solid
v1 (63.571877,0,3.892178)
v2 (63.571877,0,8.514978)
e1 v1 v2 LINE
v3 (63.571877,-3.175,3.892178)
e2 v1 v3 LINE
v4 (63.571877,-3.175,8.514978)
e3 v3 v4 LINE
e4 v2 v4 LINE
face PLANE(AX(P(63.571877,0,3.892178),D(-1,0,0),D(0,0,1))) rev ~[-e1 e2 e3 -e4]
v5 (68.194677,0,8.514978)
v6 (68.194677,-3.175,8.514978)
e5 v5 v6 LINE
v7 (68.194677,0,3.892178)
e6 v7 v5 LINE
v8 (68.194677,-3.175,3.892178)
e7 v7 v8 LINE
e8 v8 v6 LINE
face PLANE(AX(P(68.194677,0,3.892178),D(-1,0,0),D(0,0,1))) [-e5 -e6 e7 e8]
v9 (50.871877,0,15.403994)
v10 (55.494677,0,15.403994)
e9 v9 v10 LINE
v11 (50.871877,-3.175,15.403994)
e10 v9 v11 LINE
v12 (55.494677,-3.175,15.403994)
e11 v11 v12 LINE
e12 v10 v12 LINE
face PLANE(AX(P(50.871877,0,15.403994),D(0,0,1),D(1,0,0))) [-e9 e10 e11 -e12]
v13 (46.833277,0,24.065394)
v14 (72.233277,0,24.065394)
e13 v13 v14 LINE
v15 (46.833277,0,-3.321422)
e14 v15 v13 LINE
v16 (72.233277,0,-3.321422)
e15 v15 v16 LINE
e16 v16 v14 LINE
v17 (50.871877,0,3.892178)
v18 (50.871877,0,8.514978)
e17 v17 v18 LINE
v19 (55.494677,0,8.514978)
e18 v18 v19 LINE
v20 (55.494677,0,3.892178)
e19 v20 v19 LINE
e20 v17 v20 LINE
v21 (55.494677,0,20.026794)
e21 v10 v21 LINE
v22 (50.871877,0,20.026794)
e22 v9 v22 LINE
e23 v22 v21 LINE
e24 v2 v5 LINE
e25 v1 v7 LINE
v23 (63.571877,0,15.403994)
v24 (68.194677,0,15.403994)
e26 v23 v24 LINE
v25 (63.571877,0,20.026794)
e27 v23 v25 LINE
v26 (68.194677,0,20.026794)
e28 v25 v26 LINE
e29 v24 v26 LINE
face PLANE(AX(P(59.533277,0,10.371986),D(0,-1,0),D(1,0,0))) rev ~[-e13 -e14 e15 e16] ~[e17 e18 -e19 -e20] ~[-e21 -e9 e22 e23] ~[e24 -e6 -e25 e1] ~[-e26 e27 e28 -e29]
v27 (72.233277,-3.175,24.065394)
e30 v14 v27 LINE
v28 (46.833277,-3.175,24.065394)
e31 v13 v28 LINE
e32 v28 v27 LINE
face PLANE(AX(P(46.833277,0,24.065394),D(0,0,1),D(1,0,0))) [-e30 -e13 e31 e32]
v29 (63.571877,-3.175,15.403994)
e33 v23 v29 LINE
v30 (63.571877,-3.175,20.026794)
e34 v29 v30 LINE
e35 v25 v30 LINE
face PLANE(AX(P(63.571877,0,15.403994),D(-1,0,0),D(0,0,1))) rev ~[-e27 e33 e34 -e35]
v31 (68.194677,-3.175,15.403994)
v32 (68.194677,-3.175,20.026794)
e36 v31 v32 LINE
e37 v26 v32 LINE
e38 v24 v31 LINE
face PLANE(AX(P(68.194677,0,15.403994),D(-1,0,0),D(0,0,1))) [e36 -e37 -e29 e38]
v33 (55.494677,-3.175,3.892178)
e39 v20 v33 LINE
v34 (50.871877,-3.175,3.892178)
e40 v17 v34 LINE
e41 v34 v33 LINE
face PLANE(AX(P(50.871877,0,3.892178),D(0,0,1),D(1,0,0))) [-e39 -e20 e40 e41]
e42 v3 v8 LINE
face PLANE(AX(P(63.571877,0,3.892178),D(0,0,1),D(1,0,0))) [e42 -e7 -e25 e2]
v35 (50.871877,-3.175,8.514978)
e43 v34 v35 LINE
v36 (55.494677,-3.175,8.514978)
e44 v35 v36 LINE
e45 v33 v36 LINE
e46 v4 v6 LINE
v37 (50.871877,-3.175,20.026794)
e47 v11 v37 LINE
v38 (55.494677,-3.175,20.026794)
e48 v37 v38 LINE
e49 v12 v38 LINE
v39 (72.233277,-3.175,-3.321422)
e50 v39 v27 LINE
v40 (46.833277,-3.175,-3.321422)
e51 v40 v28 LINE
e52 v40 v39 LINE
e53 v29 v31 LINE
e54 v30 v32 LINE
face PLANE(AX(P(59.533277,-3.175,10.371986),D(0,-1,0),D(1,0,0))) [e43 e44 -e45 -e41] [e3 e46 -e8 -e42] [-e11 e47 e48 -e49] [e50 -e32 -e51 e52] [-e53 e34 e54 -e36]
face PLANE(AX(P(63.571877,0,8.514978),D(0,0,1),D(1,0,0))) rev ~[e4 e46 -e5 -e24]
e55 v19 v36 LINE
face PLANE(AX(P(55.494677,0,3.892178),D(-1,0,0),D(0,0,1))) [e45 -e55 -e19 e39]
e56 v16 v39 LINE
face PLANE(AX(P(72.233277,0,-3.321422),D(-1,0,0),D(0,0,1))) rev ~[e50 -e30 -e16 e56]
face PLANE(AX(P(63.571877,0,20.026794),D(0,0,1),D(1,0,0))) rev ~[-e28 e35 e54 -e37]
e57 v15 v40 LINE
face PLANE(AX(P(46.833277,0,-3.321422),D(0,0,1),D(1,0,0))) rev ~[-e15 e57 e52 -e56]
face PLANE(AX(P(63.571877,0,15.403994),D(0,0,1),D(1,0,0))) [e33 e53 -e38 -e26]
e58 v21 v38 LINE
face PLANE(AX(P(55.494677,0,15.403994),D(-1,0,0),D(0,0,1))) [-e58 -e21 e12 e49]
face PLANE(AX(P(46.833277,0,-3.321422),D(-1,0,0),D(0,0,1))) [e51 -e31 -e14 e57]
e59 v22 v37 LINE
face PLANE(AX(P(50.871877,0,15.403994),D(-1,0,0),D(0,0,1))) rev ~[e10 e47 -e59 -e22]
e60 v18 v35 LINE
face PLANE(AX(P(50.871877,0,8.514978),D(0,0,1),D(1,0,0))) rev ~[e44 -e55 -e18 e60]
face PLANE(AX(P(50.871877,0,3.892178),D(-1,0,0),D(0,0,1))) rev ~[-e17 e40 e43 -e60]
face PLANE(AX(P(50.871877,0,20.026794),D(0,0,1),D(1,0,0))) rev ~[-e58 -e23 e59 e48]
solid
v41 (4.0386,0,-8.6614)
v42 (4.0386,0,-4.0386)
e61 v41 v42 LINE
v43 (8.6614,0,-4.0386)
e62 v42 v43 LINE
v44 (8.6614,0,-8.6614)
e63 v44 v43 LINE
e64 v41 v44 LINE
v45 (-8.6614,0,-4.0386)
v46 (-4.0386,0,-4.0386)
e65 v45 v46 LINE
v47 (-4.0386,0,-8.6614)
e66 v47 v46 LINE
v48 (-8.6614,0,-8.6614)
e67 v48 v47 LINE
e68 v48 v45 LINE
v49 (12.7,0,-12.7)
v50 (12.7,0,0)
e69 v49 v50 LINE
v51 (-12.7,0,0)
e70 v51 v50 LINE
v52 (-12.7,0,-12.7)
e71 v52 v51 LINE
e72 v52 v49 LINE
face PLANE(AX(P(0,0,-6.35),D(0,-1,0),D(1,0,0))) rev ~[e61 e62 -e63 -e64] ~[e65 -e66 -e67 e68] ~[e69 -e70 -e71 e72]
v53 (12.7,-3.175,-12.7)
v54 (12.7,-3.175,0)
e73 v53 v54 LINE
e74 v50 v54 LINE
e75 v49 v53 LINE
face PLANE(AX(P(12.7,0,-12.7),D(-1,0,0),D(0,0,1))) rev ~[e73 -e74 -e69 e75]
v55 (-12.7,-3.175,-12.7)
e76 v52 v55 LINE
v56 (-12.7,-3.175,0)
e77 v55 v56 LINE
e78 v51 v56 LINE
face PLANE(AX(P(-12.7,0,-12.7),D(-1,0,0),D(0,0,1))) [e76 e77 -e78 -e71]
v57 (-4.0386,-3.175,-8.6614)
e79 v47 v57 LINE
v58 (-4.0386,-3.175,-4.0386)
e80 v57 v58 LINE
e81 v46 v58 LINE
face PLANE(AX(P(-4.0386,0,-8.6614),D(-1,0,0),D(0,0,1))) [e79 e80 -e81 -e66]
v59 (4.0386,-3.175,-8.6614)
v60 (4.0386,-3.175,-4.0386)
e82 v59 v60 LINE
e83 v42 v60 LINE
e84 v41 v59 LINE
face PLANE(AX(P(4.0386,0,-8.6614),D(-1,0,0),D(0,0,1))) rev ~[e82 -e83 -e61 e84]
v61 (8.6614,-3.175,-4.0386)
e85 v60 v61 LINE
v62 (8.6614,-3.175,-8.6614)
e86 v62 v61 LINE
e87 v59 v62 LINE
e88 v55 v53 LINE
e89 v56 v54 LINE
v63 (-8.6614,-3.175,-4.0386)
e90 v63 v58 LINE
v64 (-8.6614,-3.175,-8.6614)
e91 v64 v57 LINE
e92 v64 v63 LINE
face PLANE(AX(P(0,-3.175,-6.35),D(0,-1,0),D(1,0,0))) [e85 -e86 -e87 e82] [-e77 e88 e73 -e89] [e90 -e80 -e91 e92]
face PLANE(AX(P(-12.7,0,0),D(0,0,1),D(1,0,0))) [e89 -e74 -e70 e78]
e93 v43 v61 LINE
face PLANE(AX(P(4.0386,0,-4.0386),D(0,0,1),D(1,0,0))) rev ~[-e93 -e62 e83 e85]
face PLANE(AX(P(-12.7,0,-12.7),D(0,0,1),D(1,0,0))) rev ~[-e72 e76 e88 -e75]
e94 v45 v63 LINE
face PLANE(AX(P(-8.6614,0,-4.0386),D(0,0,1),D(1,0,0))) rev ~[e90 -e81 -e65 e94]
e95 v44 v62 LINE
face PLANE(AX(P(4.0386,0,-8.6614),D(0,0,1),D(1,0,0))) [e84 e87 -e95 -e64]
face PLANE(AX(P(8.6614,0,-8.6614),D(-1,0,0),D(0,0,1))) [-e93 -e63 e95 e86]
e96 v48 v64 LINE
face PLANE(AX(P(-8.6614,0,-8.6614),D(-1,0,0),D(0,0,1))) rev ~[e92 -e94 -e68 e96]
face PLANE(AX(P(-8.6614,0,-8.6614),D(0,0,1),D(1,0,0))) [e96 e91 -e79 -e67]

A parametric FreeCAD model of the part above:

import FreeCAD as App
import Part
import Sketcher
Q = App.Units.Quantity


def add_polygon(sketch, points):
    """Adds a closed chain of lines whose ends are joined by coincident constraints."""
    first, n = sketch.GeometryCount, len(points)
    for a, b in zip(points, points[1:] + points[:1]):
        sketch.addGeometry(Part.LineSegment(App.Vector(*a, 0), App.Vector(*b, 0)), False)
    for i in range(n):
        sketch.addConstraint(Sketcher.Constraint("Coincident", first + i, 2, first + (i + 1) % n, 1))

doc = App.newDocument("Part")
body = doc.addObject("PartDesign::Body", "Body")
body.AllowCompound = True

sketch1 = body.newObject("Sketcher::SketchObject", "Sketch")
sketch1.AttachmentSupport = (doc.getObject("XZ_Plane"), [""])
sketch1.MapMode = "FlatFace"
add_polygon(sketch1, [(-12.7, 0), (-12.7, -12.7), (12.7, -12.7), (12.7, 0)])
add_polygon(sketch1, [(-4, -8.7), (-8.7, -8.7), (-8.7, -4), (-4, -4)])
add_polygon(sketch1, [(8.7, -8.7), (4, -8.7), (4, -4), (8.7, -4)])
add_polygon(sketch1, [(46.8, 24.1), (46.8, -3.3), (72.2, -3.3), (72.2, 24.1)])
add_polygon(sketch1, [(55.5, 3.9), (50.9, 3.9), (50.9, 8.5), (55.5, 8.5)])
add_polygon(sketch1, [(68.2, 3.9), (63.6, 3.9), (63.6, 8.5), (68.2, 8.5)])
add_polygon(sketch1, [(55.5, 15.4), (50.9, 15.4), (50.9, 20), (55.5, 20)])
add_polygon(sketch1, [(68.2, 15.4), (63.6, 15.4), (63.6, 20), (68.2, 20)])
sketch1.addConstraint([
    Sketcher.Constraint("Vertical", 0),
    Sketcher.Constraint("Horizontal", 1),
    Sketcher.Constraint("Vertical", 2),
    Sketcher.Constraint("Horizontal", 3),
    Sketcher.Constraint("Horizontal", 4),
    Sketcher.Constraint("Vertical", 5),
    Sketcher.Constraint("Horizontal", 6),
    Sketcher.Constraint("Vertical", 7),
    Sketcher.Constraint("Horizontal", 8),
    Sketcher.Constraint("Vertical", 9),
    Sketcher.Constraint("Horizontal", 10),
    Sketcher.Constraint("Vertical", 11),
    Sketcher.Constraint("Vertical", 12),
    Sketcher.Constraint("Horizontal", 13),
    Sketcher.Constraint("Vertical", 14),
    Sketcher.Constraint("Horizontal", 15),
    Sketcher.Constraint("Horizontal", 16),
    Sketcher.Constraint("Vertical", 17),
    Sketcher.Constraint("Horizontal", 18),
    Sketcher.Constraint("Vertical", 19),
    Sketcher.Constraint("Horizontal", 20),
    Sketcher.Constraint("Vertical", 21),
    Sketcher.Constraint("Horizontal", 22),
    Sketcher.Constraint("Vertical", 23),
    Sketcher.Constraint("Horizontal", 24),
    Sketcher.Constraint("Vertical", 25),
    Sketcher.Constraint("Horizontal", 26),
    Sketcher.Constraint("Vertical", 27),
    Sketcher.Constraint("Horizontal", 28),
    Sketcher.Constraint("Vertical", 29),
    Sketcher.Constraint("Horizontal", 30),
    Sketcher.Constraint("Vertical", 31),
    Sketcher.Constraint("Symmetric", 2, 2, 3, 2, -1, 1),
    Sketcher.Constraint("Symmetric", 7, 2, 8, 2, -2),
    Sketcher.Constraint("Symmetric", 5, 2, 10, 2, -2),
    Sketcher.Constraint("Horizontal", 19, 2, 20, 2),
    Sketcher.Constraint("Horizontal", 18, 2, 21, 2),
    Sketcher.Constraint("Horizontal", 27, 2, 28, 2),
    Sketcher.Constraint("Horizontal", 26, 2, 29, 2),
    Sketcher.Constraint("Vertical", 17, 2, 24, 2),
    Sketcher.Constraint("Vertical", 19, 2, 26, 2),
    Sketcher.Constraint("Vertical", 21, 2, 28, 2),
    Sketcher.Constraint("Vertical", 23, 2, 30, 2),
    Sketcher.Constraint("Equal", 3, 13),
    Sketcher.Constraint("Equal", 10, 16),
    Sketcher.Constraint("Equal", 18, 20),
    Sketcher.Constraint("Equal", 30, 5),
    Sketcher.Constraint("Equal", 11, 17),
    Sketcher.Constraint("Equal", 23, 25),
    Sketcher.Constraint("DistanceX", 1, 1, 1, 2, Q("1 in")),
    Sketcher.Constraint("DistanceY", 0, 2, 0, 1, Q("0.5 in")),
    Sketcher.Constraint("DistanceX", 4, 2, 8, 2, Q("0.5 in")),
    Sketcher.Constraint("DistanceX", 16, 2, 20, 2, Q("0.5 in")),
    Sketcher.Constraint("DistanceX", 4, 2, 4, 1, Q("0.182 in")),
    Sketcher.Constraint("DistanceY", 4, 2, -1, 1, Q("0.341 in")),
    Sketcher.Constraint("DistanceX", 12, 2, 16, 2, Q("0.159 in")),
    Sketcher.Constraint("DistanceY", 12, 2, 16, 2, Q("0.284 in")),
    Sketcher.Constraint("DistanceY", 24, 2, 15, 2, Q("0.341 in")),
    Sketcher.Constraint("DistanceY", 12, 2, 12, 1, Q("27.386816 mm")),
    Sketcher.Constraint("DistanceY", 11, 2, 12, 2, Q("5.339978 mm")),
    Sketcher.Constraint("DistanceX", -1, 1, 12, 2, Q("46.833277 mm")),
])
pad1 = body.newObject("PartDesign::Pad", "Pad")
pad1.Profile = sketch1
pad1.Length = Q("0.125 in")

doc.recompute()
